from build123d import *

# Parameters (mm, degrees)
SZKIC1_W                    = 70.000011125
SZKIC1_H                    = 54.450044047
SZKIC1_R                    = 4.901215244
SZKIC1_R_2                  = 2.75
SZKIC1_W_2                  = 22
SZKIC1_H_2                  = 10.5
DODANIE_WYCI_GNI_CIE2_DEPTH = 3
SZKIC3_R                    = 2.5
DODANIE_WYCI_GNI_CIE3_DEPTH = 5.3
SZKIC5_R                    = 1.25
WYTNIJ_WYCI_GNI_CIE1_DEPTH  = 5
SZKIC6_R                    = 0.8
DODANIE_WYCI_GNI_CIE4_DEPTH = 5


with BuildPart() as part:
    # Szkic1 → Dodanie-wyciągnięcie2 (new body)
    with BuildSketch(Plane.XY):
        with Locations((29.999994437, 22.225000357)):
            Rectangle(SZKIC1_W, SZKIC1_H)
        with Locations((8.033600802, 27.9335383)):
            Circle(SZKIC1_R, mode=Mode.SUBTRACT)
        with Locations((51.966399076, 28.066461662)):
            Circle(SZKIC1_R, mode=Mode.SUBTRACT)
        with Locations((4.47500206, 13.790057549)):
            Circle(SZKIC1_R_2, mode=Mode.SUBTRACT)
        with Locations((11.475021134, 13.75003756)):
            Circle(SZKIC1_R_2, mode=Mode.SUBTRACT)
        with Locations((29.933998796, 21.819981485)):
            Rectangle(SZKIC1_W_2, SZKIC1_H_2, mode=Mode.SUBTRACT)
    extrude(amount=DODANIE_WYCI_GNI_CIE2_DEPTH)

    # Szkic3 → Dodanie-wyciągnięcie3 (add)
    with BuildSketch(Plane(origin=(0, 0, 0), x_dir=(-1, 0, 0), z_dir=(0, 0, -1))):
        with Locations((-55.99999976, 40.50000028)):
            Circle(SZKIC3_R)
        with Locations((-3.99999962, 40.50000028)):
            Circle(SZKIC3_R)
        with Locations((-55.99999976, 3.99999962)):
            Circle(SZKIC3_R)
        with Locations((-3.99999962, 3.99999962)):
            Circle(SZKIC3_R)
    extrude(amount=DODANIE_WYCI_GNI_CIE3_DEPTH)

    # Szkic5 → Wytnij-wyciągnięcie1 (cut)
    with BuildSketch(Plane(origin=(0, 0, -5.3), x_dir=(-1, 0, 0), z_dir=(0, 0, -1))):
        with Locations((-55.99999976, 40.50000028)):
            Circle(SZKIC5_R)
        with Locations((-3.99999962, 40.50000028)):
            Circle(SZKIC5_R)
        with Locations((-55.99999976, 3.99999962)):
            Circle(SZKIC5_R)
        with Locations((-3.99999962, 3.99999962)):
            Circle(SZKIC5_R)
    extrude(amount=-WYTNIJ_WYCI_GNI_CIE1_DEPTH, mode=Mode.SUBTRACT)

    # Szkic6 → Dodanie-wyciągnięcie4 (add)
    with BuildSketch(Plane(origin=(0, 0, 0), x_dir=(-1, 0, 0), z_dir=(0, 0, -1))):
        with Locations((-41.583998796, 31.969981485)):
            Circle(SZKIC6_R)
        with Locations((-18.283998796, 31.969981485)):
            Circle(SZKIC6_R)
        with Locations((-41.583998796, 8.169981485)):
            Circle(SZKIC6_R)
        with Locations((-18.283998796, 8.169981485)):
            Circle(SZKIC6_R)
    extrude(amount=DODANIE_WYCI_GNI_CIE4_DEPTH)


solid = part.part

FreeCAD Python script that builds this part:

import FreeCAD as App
import Part
import Sketcher


def add_polygon(sketch, points):
    """Adds a closed chain of lines whose ends are joined by coincident constraints."""
    first, n = sketch.GeometryCount, len(points)
    for a, b in zip(points, points[1:] + points[:1]):
        sketch.addGeometry(Part.LineSegment(App.Vector(*a, 0), App.Vector(*b, 0)), False)
    for i in range(n):
        sketch.addConstraint(Sketcher.Constraint("Coincident", first + i, 2, first + (i + 1) % n, 1))

doc = App.newDocument("Part")
body = doc.addObject("PartDesign::Body", "Body")

# Sketch on XY plane
sketch1 = doc.addObject("Sketcher::SketchObject", "Sketch")
body.addObject(sketch1)
sketch1.AttachmentSupport = (doc.XY_Plane, [""])
sketch1.MapMode = "FlatFace"
add_polygon(sketch1, [(-5, 49.5), (-5, -5), (65, -5), (65, 49.5)])  # lines 0-3
sketch1.addGeometry(Part.Circle(App.Vector(4.5, 13.8, 0), App.Vector(0, 0, 1), 2.8), False)  # 4
sketch1.addGeometry(Part.Circle(App.Vector(11.5, 13.8, 0), App.Vector(0, 0, 1), 2.8), False)  # 5
add_polygon(sketch1, [(40.9, 16.6), (18.9, 16.6), (18.9, 27.1), (40.9, 27.1)])  # lines 6-9
sketch1.addGeometry(Part.Circle(App.Vector(8, 27.9, 0), App.Vector(0, 0, 1), 4.9), False)  # 10
sketch1.addGeometry(Part.Circle(App.Vector(52, 28.1, 0), App.Vector(0, 0, 1), 4.9), False)  # 11
sketch1.addConstraint(Sketcher.Constraint("Vertical", 0))
sketch1.addConstraint(Sketcher.Constraint("Horizontal", 1))
sketch1.addConstraint(Sketcher.Constraint("Vertical", 2))
sketch1.addConstraint(Sketcher.Constraint("Horizontal", 3))
sketch1.addConstraint(Sketcher.Constraint("Horizontal", 6))
sketch1.addConstraint(Sketcher.Constraint("Vertical", 7))
sketch1.addConstraint(Sketcher.Constraint("Horizontal", 8))
sketch1.addConstraint(Sketcher.Constraint("Vertical", 9))
sketch1.addConstraint(Sketcher.Constraint("Equal", 4, 5))
sketch1.addConstraint(Sketcher.Constraint("Equal", 10, 11))
sketch1.addConstraint(Sketcher.Constraint("Diameter", 4, 5.5))
sketch1.addConstraint(Sketcher.Constraint("DistanceX", 6, 2, 6, 1, 22.0))
sketch1.addConstraint(Sketcher.Constraint("DistanceY", 7, 1, 7, 2, 10.5))
sketch1.addConstraint(Sketcher.Constraint("DistanceX", -1, 1, 1, 2, 65.0))
sketch1.addConstraint(Sketcher.Constraint("Diameter", 10, 9.80243))
sketch1.addConstraint(Sketcher.Constraint("DistanceX", -1, 1, 6, 2, 18.933999))
sketch1.addConstraint(Sketcher.Constraint("DistanceX", 1, 1, 1, 2, 70.000011))
sketch1.addConstraint(Sketcher.Constraint("DistanceX", -1, 1, 10, 3, 8.033601))
sketch1.addConstraint(Sketcher.Constraint("DistanceX", -1, 1, 11, 3, 51.966399))
sketch1.addConstraint(Sketcher.Constraint("DistanceX", 4, 3, 10, 3, 3.558599))
sketch1.addConstraint(Sketcher.Constraint("DistanceY", 5, 3, 10, 3, 14.183501))
sketch1.addConstraint(Sketcher.Constraint("DistanceY", 0, 2, 0, 1, 54.450044))
sketch1.addConstraint(Sketcher.Constraint("DistanceX", -1, 1, 5, 3, 11.475021))
sketch1.addConstraint(Sketcher.Constraint("DistanceY", -1, 1, 10, 3, 27.933538))
sketch1.addConstraint(Sketcher.Constraint("DistanceY", -1, 1, 11, 3, 28.066462))
sketch1.addConstraint(Sketcher.Constraint("DistanceY", 0, 2, -1, 1, 5.000022))
sketch1.addConstraint(Sketcher.Constraint("DistanceY", -1, 1, 6, 2, 16.569981))
sketch1.addConstraint(Sketcher.Constraint("DistanceY", 5, 3, 4, 3, 0.04002))
pad1 = doc.addObject("PartDesign::Pad", "Pad")
body.addObject(pad1)
pad1.Profile = sketch1
pad1.Length = 3

# Sketch on XY plane
sketch2 = doc.addObject("Sketcher::SketchObject", "Sketch001")
body.addObject(sketch2)
sketch2.AttachmentSupport = (doc.XY_Plane, [""])
sketch2.MapMode = "FlatFace"
sketch2.addGeometry(Part.Circle(App.Vector(56, 40.5, 0), App.Vector(0, 0, 1), 2.5), False)
sketch2.addGeometry(Part.Circle(App.Vector(4, 40.5, 0), App.Vector(0, 0, 1), 2.5), False)
sketch2.addGeometry(Part.Circle(App.Vector(56, 4, 0), App.Vector(0, 0, 1), 2.5), False)
sketch2.addGeometry(Part.Circle(App.Vector(4, 4, 0), App.Vector(0, 0, 1), 2.5), False)
sketch2.addConstraint(Sketcher.Constraint("Equal", 0, 1))
sketch2.addConstraint(Sketcher.Constraint("Equal", 1, 2))
sketch2.addConstraint(Sketcher.Constraint("Equal", 2, 3))
sketch2.addConstraint(Sketcher.Constraint("Horizontal", 0, 3, 1, 3))
sketch2.addConstraint(Sketcher.Constraint("Horizontal", 2, 3, 3, 3))
sketch2.addConstraint(Sketcher.Constraint("Vertical", 0, 3, 2, 3))
sketch2.addConstraint(Sketcher.Constraint("Vertical", 1, 3, 3, 3))
sketch2.addConstraint(Sketcher.Constraint("Diameter", 0, 5.0))
sketch2.addConstraint(Sketcher.Constraint("DistanceX", -1, 1, 0, 3, 56.0))
sketch2.addConstraint(Sketcher.Constraint("DistanceX", -1, 1, 1, 3, 4.0))
sketch2.addConstraint(Sketcher.Constraint("DistanceY", -1, 1, 2, 3, 4.0))
sketch2.addConstraint(Sketcher.Constraint("DistanceY", -1, 1, 0, 3, 40.5))
pad2 = doc.addObject("PartDesign::Pad", "Pad001")
body.addObject(pad2)
pad2.Profile = sketch2
pad2.Length = 5.3
pad2.Reversed = True

# Sketch on XY plane
sketch3 = doc.addObject("Sketcher::SketchObject", "Sketch002")
body.addObject(sketch3)
sketch3.AttachmentSupport = (doc.XY_Plane, [""])
sketch3.MapMode = "FlatFace"
sketch3.AttachmentOffset = App.Placement(App.Vector(0, 0, -5.3), App.Rotation())
sketch3.addGeometry(Part.Circle(App.Vector(56, 40.5, 0), App.Vector(0, 0, 1), 1.2), False)
sketch3.addGeometry(Part.Circle(App.Vector(4, 40.5, 0), App.Vector(0, 0, 1), 1.2), False)
sketch3.addGeometry(Part.Circle(App.Vector(56, 4, 0), App.Vector(0, 0, 1), 1.2), False)
sketch3.addGeometry(Part.Circle(App.Vector(4, 4, 0), App.Vector(0, 0, 1), 1.2), False)
sketch3.addConstraint(Sketcher.Constraint("Equal", 0, 1))
sketch3.addConstraint(Sketcher.Constraint("Equal", 1, 2))
sketch3.addConstraint(Sketcher.Constraint("Equal", 2, 3))
sketch3.addConstraint(Sketcher.Constraint("Horizontal", 0, 3, 1, 3))
sketch3.addConstraint(Sketcher.Constraint("Horizontal", 2, 3, 3, 3))
sketch3.addConstraint(Sketcher.Constraint("Vertical", 0, 3, 2, 3))
sketch3.addConstraint(Sketcher.Constraint("Vertical", 1, 3, 3, 3))
sketch3.addConstraint(Sketcher.Constraint("Diameter", 0, 2.5))
sketch3.addConstraint(Sketcher.Constraint("DistanceX", -1, 1, 0, 3, 56.0))
sketch3.addConstraint(Sketcher.Constraint("DistanceX", -1, 1, 1, 3, 4.0))
sketch3.addConstraint(Sketcher.Constraint("DistanceY", -1, 1, 2, 3, 4.0))
sketch3.addConstraint(Sketcher.Constraint("DistanceY", -1, 1, 0, 3, 40.5))
pocket1 = doc.addObject("PartDesign::Pocket", "Pocket")
body.addObject(pocket1)
pocket1.Profile = sketch3
pocket1.Length = 5
pocket1.Reversed = True

# Sketch on XY plane
sketch4 = doc.addObject("Sketcher::SketchObject", "Sketch003")
body.addObject(sketch4)
sketch4.AttachmentSupport = (doc.XY_Plane, [""])
sketch4.MapMode = "FlatFace"
sketch4.addGeometry(Part.Circle(App.Vector(41.6, 32, 0), App.Vector(0, 0, 1), 0.8), False)
sketch4.addGeometry(Part.Circle(App.Vector(18.3, 32, 0), App.Vector(0, 0, 1), 0.8), False)
sketch4.addGeometry(Part.Circle(App.Vector(41.6, 8.2, 0), App.Vector(0, 0, 1), 0.8), False)
sketch4.addGeometry(Part.Circle(App.Vector(18.3, 8.2, 0), App.Vector(0, 0, 1), 0.8), False)
sketch4.addConstraint(Sketcher.Constraint("Equal", 0, 1))
sketch4.addConstraint(Sketcher.Constraint("Equal", 1, 2))
sketch4.addConstraint(Sketcher.Constraint("Equal", 2, 3))
sketch4.addConstraint(Sketcher.Constraint("Horizontal", 0, 3, 1, 3))
sketch4.addConstraint(Sketcher.Constraint("Horizontal", 2, 3, 3, 3))
sketch4.addConstraint(Sketcher.Constraint("Vertical", 0, 3, 2, 3))
sketch4.addConstraint(Sketcher.Constraint("Vertical", 1, 3, 3, 3))
sketch4.addConstraint(Sketcher.Constraint("Diameter", 0, 1.6))
sketch4.addConstraint(Sketcher.Constraint("DistanceX", 1, 3, 0, 3, 23.3))
sketch4.addConstraint(Sketcher.Constraint("DistanceY", 2, 3, 0, 3, 23.8))
sketch4.addConstraint(Sketcher.Constraint("DistanceX", -1, 1, 0, 3, 41.583999))
sketch4.addConstraint(Sketcher.Constraint("DistanceY", -1, 1, 0, 3, 31.969981))
pad3 = doc.addObject("PartDesign::Pad", "Pad002")
body.addObject(pad3)
pad3.Profile = sketch4
pad3.Length = 5
pad3.Reversed = True

doc.recompute()
